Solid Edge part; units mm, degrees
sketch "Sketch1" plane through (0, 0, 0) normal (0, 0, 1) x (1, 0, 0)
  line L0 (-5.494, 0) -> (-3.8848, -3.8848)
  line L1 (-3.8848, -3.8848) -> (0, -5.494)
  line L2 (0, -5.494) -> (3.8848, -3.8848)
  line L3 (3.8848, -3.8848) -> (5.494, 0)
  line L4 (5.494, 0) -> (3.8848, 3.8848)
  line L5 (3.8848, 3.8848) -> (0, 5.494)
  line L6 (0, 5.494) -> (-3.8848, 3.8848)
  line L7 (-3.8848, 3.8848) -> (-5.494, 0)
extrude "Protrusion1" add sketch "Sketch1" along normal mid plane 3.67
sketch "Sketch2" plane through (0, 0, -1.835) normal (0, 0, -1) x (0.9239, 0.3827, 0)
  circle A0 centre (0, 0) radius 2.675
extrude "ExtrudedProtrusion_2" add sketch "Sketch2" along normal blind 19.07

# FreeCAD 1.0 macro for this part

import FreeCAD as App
import Part
import Sketcher

V = App.Vector
Q = App.Units.Quantity

doc = App.newDocument("Part")
params = doc.addObject("Spreadsheet::Sheet", "Params")
for row, (alias, value) in enumerate([
    ("pad1_length", "3.67 mm"),
    ("sketch2_diameter", "5.35 mm"),
    ("pad2_length", "19.07 mm"),
], start=1):
    params.set(f"A{row}", alias)
    params.set(f"B{row}", "=" + value)
    params.setAlias(f"B{row}", alias)

body = doc.addObject("PartDesign::Body", "Body")

sketch1 = body.newObject("Sketcher::SketchObject", "Sketch")
sketch1.AttachmentSupport = (doc.getObject("XY_Plane"), [""])
sketch1.MapMode = "FlatFace"
sketch1.addGeometry([
    Part.LineSegment(V(-3.9, 3.9, 0), V(-5.5, 0, 0)),
    Part.LineSegment(V(-5.5, 0, 0), V(-3.9, -3.9, 0)),
    Part.LineSegment(V(-3.9, -3.9, 0), V(0, -5.5, 0)),
    Part.LineSegment(V(0, -5.5, 0), V(3.9, -3.9, 0)),
    Part.LineSegment(V(3.9, -3.9, 0), V(5.5, 0, 0)),
    Part.LineSegment(V(5.5, 0, 0), V(3.9, 3.9, 0)),
    Part.LineSegment(V(3.9, 3.9, 0), V(0, 5.5, 0)),
    Part.LineSegment(V(0, 5.5, 0), V(-3.9, 3.9, 0)),
], False)
sketch1.addConstraint([
    Sketcher.Constraint("Coincident", 0, 2, 1, 1),
    Sketcher.Constraint("Coincident", 1, 2, 2, 1),
    Sketcher.Constraint("Coincident", 2, 2, 3, 1),
    Sketcher.Constraint("Coincident", 3, 2, 4, 1),
    Sketcher.Constraint("Coincident", 4, 2, 5, 1),
    Sketcher.Constraint("Coincident", 5, 2, 6, 1),
    Sketcher.Constraint("Coincident", 6, 2, 7, 1),
    Sketcher.Constraint("Coincident", 7, 2, 0, 1),
    Sketcher.Constraint("Symmetric", 0, 2, 4, 2, -1, 1),
    Sketcher.Constraint("Symmetric", 1, 2, 5, 2, -1, 1),
    Sketcher.Constraint("Symmetric", 2, 2, 6, 2, -1, 1),
    Sketcher.Constraint("Symmetric", 3, 2, 7, 2, -1, 1),
    Sketcher.Constraint("Symmetric", 1, 2, 3, 2, -2),
    Sketcher.Constraint("PointOnObject", 0, 2, -1),
    Sketcher.Constraint("PointOnObject", 2, 2, -2),
    Sketcher.Constraint("Perpendicular", 0, 2),
    Sketcher.Constraint("Equal", 1, 2),
    Sketcher.Constraint("Angle", 0, Q("-112.5008 deg")),
    Sketcher.Constraint("Distance", 0, Q("4.205 mm")),
])
pad1 = body.newObject("PartDesign::Pad", "Pad")
pad1.Profile = sketch1
pad1.setExpression("Length", "Params.pad1_length")
pad1.Midplane = True

sketch2 = body.newObject("Sketcher::SketchObject", "Sketch001")
sketch2.AttachmentSupport = (doc.getObject("XY_Plane"), [""])
sketch2.MapMode = "FlatFace"
sketch2.AttachmentOffset = App.Placement(V(0, 0, -1.835), App.Rotation())
sketch2.addGeometry(Part.Circle(V(0, 0, 0), V(0, 0, 1), 2.7), False)
sketch2.addConstraint([
    Sketcher.Constraint("Coincident", 0, 3, -1, 1),
    Sketcher.Constraint("Diameter", 0, Q("5.35 mm")),
])
sketch2.setExpression("Constraints[1]", "Params.sketch2_diameter")
pad2 = body.newObject("PartDesign::Pad", "Pad001")
pad2.Profile = sketch2
pad2.setExpression("Length", "Params.pad2_length")
pad2.Reversed = True

doc.recompute()
